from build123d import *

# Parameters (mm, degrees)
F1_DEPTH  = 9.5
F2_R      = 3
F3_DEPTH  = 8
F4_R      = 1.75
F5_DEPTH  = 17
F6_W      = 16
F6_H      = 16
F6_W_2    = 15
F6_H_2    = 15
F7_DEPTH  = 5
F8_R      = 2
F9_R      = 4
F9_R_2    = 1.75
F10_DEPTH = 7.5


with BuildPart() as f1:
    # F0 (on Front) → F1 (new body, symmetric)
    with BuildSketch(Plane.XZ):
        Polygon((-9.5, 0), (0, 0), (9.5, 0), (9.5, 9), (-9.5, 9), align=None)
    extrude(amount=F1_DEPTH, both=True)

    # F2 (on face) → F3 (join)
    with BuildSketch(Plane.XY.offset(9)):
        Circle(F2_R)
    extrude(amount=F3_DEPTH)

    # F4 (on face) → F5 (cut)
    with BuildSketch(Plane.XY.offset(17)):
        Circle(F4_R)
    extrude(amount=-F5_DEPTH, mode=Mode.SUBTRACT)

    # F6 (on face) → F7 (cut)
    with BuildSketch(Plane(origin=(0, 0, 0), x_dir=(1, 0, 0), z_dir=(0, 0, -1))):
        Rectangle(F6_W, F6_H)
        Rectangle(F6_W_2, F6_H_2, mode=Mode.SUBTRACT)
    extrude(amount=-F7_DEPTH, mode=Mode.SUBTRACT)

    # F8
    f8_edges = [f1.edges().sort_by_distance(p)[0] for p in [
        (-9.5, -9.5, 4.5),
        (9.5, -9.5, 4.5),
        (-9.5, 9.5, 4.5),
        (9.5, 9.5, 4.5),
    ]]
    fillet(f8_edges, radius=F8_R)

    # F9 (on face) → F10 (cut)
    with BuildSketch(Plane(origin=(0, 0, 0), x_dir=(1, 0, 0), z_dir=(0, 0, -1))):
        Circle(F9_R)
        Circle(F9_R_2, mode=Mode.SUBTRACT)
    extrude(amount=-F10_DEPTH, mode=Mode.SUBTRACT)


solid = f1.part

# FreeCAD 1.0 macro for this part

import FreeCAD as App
import Part
import Sketcher

V = App.Vector
Q = App.Units.Quantity


def edges_at(feature, points):
    """Names of the edges that pass closest to the given points."""
    edges = feature.Shape.Edges
    near = lambda p: min(range(len(edges)), key=lambda i: edges[i].distToShape(Part.Vertex(*p))[0])
    return sorted({f"Edge{near(p) + 1}" for p in points})

doc = App.newDocument("Part")
body = doc.addObject("PartDesign::Body", "Body")

sketch1 = body.newObject("Sketcher::SketchObject", "Sketch")
sketch1.AttachmentSupport = (doc.getObject("XZ_Plane"), [""])
sketch1.MapMode = "FlatFace"
sketch1.addGeometry(Part.LineSegment(V(-10, 0, 0), V(10, 0, 0)), False)
sketch1.addGeometry(Part.LineSegment(V(10, 0, 0), V(10, 9, 0)), False)
sketch1.addGeometry(Part.LineSegment(V(10, 9, 0), V(-10, 9, 0)), False)
sketch1.addGeometry(Part.LineSegment(V(-10, 9, 0), V(-10, 0, 0)), False)
sketch1.addConstraint(Sketcher.Constraint("Coincident", 0, 2, 1, 1))
sketch1.addConstraint(Sketcher.Constraint("Coincident", 1, 2, 2, 1))
sketch1.addConstraint(Sketcher.Constraint("Coincident", 2, 2, 3, 1))
sketch1.addConstraint(Sketcher.Constraint("Coincident", 3, 2, 0, 1))
sketch1.addConstraint(Sketcher.Constraint("Horizontal", 0))
sketch1.addConstraint(Sketcher.Constraint("Vertical", 1))
sketch1.addConstraint(Sketcher.Constraint("Horizontal", 2))
sketch1.addConstraint(Sketcher.Constraint("Vertical", 3))
sketch1.addConstraint(Sketcher.Constraint("Symmetric", 0, 2, 3, 2, -1, 1))
sketch1.addConstraint(Sketcher.Constraint("DistanceX", 0, 1, 0, 2, Q("19 mm")))
sketch1.addConstraint(Sketcher.Constraint("DistanceY", 1, 1, 1, 2, Q("9 mm")))
pad1 = body.newObject("PartDesign::Pad", "Pad")
pad1.Profile = sketch1
pad1.Length = 19
pad1.Midplane = True

sketch2 = body.newObject("Sketcher::SketchObject", "Sketch001")
sketch2.AttachmentSupport = (doc.getObject("XY_Plane"), [""])
sketch2.MapMode = "FlatFace"
sketch2.AttachmentOffset = App.Placement(V(0, 0, 9), App.Rotation())
sketch2.addGeometry(Part.Circle(V(0, 0, 0), V(0, 0, 1), 3), False)
sketch2.addConstraint(Sketcher.Constraint("Coincident", 0, 3, -1, 1))
sketch2.addConstraint(Sketcher.Constraint("Diameter", 0, Q("6 mm")))
pad2 = body.newObject("PartDesign::Pad", "Pad001")
pad2.Profile = sketch2
pad2.Length = 8

sketch3 = body.newObject("Sketcher::SketchObject", "Sketch002")
sketch3.AttachmentSupport = (doc.getObject("XY_Plane"), [""])
sketch3.MapMode = "FlatFace"
sketch3.AttachmentOffset = App.Placement(V(0, 0, 17), App.Rotation())
sketch3.addGeometry(Part.Circle(V(0, 0, 0), V(0, 0, 1), 1.8), False)
sketch3.addConstraint(Sketcher.Constraint("Coincident", 0, 3, -1, 1))
sketch3.addConstraint(Sketcher.Constraint("Diameter", 0, Q("3.5 mm")))
pocket1 = body.newObject("PartDesign::Pocket", "Pocket")
pocket1.Profile = sketch3
pocket1.Length = 17

sketch4 = body.newObject("Sketcher::SketchObject", "Sketch003")
sketch4.AttachmentSupport = (doc.getObject("XY_Plane"), [""])
sketch4.MapMode = "FlatFace"
sketch4.addGeometry(Part.LineSegment(V(-8, -8, 0), V(-8, 8, 0)), False)
sketch4.addGeometry(Part.LineSegment(V(-8, 8, 0), V(8, 8, 0)), False)
sketch4.addGeometry(Part.LineSegment(V(8, 8, 0), V(8, -8, 0)), False)
sketch4.addGeometry(Part.LineSegment(V(8, -8, 0), V(-8, -8, 0)), False)
sketch4.addGeometry(Part.LineSegment(V(8, 8, 0), V(-8, 8, 0)), False)
sketch4.addGeometry(Part.LineSegment(V(-8, 8, 0), V(-8, -8, 0)), False)
sketch4.addGeometry(Part.LineSegment(V(-8, -8, 0), V(8, -8, 0)), False)
sketch4.addGeometry(Part.LineSegment(V(8, -8, 0), V(8, 8, 0)), False)
sketch4.addConstraint(Sketcher.Constraint("Coincident", 0, 2, 1, 1))
sketch4.addConstraint(Sketcher.Constraint("Coincident", 1, 2, 2, 1))
sketch4.addConstraint(Sketcher.Constraint("Coincident", 2, 2, 3, 1))
sketch4.addConstraint(Sketcher.Constraint("Coincident", 3, 2, 0, 1))
sketch4.addConstraint(Sketcher.Constraint("Coincident", 4, 2, 5, 1))
sketch4.addConstraint(Sketcher.Constraint("Coincident", 5, 2, 6, 1))
sketch4.addConstraint(Sketcher.Constraint("Coincident", 6, 2, 7, 1))
sketch4.addConstraint(Sketcher.Constraint("Coincident", 7, 2, 4, 1))
sketch4.addConstraint(Sketcher.Constraint("Vertical", 0))
sketch4.addConstraint(Sketcher.Constraint("Horizontal", 1))
sketch4.addConstraint(Sketcher.Constraint("Vertical", 2))
sketch4.addConstraint(Sketcher.Constraint("Horizontal", 3))
sketch4.addConstraint(Sketcher.Constraint("Horizontal", 4))
sketch4.addConstraint(Sketcher.Constraint("Vertical", 5))
sketch4.addConstraint(Sketcher.Constraint("Horizontal", 6))
sketch4.addConstraint(Sketcher.Constraint("Vertical", 7))
sketch4.addConstraint(Sketcher.Constraint("Symmetric", 0, 2, 2, 2, -1, 1))
sketch4.addConstraint(Sketcher.Constraint("Symmetric", 4, 2, 6, 2, -1, 1))
sketch4.addConstraint(Sketcher.Constraint("Equal", 3, 0))
sketch4.addConstraint(Sketcher.Constraint("Equal", 6, 5))
sketch4.addConstraint(Sketcher.Constraint("DistanceX", 1, 1, 1, 2, Q("16 mm")))
sketch4.addConstraint(Sketcher.Constraint("DistanceX", 4, 2, 4, 1, Q("15 mm")))
pocket2 = body.newObject("PartDesign::Pocket", "Pocket001")
pocket2.Profile = sketch4
pocket2.Length = 5
pocket2.Reversed = True
doc.recompute()

fillet = body.newObject("PartDesign::Fillet", "Fillet")
fillet.Base = (pocket2, edges_at(pocket2, [
    (-9.5, -9.5, 4.5),
    (9.5, -9.5, 4.5),
    (-9.5, 9.5, 4.5),
    (9.5, 9.5, 4.5),
]))
fillet.Radius = 2

sketch5 = body.newObject("Sketcher::SketchObject", "Sketch004")
sketch5.AttachmentSupport = (doc.getObject("XY_Plane"), [""])
sketch5.MapMode = "FlatFace"
sketch5.addGeometry(Part.Circle(V(0, 0, 0), V(0, 0, 1), 4), False)
sketch5.addGeometry(Part.Circle(V(0, 0, 0), V(0, 0, 1), 1.8), False)
sketch5.addConstraint(Sketcher.Constraint("Coincident", 0, 3, -1, 1))
sketch5.addConstraint(Sketcher.Constraint("Coincident", 1, 3, -1, 1))
sketch5.addConstraint(Sketcher.Constraint("Diameter", 0, Q("8 mm")))
sketch5.addConstraint(Sketcher.Constraint("Diameter", 1, Q("3.5 mm")))
pocket3 = body.newObject("PartDesign::Pocket", "Pocket002")
pocket3.Profile = sketch5
pocket3.Length = 7.5
pocket3.Reversed = True

doc.recompute()
